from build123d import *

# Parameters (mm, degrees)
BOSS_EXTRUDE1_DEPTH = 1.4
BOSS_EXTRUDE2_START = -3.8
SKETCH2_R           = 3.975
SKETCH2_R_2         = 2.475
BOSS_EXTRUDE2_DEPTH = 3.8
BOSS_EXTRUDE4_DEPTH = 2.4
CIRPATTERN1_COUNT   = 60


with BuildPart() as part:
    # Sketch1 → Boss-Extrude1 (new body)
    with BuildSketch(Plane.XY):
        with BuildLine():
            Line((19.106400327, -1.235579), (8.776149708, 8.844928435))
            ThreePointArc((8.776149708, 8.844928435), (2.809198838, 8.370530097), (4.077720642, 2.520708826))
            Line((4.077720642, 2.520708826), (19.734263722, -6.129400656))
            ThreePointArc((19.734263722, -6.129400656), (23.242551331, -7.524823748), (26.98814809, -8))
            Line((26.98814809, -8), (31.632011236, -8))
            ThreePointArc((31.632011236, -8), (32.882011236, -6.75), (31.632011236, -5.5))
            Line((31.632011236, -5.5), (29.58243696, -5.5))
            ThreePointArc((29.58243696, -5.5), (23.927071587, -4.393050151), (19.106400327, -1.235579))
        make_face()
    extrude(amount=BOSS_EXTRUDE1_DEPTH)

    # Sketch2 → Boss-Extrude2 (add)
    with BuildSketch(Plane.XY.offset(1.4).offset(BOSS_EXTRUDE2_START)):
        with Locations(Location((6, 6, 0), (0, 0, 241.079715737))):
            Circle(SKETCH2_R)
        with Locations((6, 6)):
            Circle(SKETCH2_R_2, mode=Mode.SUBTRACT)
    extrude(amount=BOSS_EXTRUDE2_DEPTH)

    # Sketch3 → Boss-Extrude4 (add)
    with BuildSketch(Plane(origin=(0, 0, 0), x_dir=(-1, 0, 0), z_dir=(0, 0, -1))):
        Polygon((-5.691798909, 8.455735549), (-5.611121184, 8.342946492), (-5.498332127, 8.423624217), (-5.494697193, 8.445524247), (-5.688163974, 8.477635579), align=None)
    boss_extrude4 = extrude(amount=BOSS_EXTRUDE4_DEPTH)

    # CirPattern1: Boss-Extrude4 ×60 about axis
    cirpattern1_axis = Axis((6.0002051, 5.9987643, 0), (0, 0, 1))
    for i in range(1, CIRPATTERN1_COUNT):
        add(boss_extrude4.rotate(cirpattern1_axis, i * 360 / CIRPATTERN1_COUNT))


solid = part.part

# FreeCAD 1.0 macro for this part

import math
import FreeCAD as App
import Part
import Sketcher


def add_polygon(sketch, points):
    """Adds a closed chain of lines whose ends are joined by coincident constraints."""
    first, n = sketch.GeometryCount, len(points)
    for a, b in zip(points, points[1:] + points[:1]):
        sketch.addGeometry(Part.LineSegment(App.Vector(*a, 0), App.Vector(*b, 0)), False)
    for i in range(n):
        sketch.addConstraint(Sketcher.Constraint("Coincident", first + i, 2, first + (i + 1) % n, 1))

doc = App.newDocument("Part")
body = doc.addObject("PartDesign::Body", "Body")

sketch1 = body.newObject("Sketcher::SketchObject", "Sketch")
sketch1.AttachmentSupport = (doc.getObject("XY_Plane"), [""])
sketch1.MapMode = "FlatFace"
sketch1.addGeometry([
    Part.LineSegment(App.Vector(19.1064, -1.235579, 0), App.Vector(8.77615, 8.844928, 0)),
    Part.ArcOfCircle(Part.Circle(App.Vector(6, 6, 0), App.Vector(0, 0, 1), 3.975), math.radians(45.701028), math.radians(241.079716)),
    Part.LineSegment(App.Vector(4.077721, 2.520709, 0), App.Vector(19.734264, -6.129401, 0)),
    Part.ArcOfCircle(Part.Circle(App.Vector(26.988148, 7, 0), App.Vector(0, 0, 1), 15), math.radians(-118.920284), math.radians(-90)),
    Part.LineSegment(App.Vector(26.988148, -8, 0), App.Vector(31.632011, -8, 0)),
    Part.ArcOfCircle(Part.Circle(App.Vector(31.632011, -6.75, 0), App.Vector(0, 0, 1), 1.25), math.radians(-90), math.radians(90)),
    Part.LineSegment(App.Vector(31.632011, -5.5, 0), App.Vector(29.582437, -5.5, 0)),
    Part.ArcOfCircle(Part.Circle(App.Vector(29.582437, 9.5, 0), App.Vector(0, 0, 1), 15), math.radians(-134.298972), math.radians(-90)),
], False)
sketch1.addConstraint([
    Sketcher.Constraint("Coincident", 0, 2, 1, 1),
    Sketcher.Constraint("Coincident", 1, 2, 2, 1),
    Sketcher.Constraint("Coincident", 2, 2, 3, 1),
    Sketcher.Constraint("Coincident", 3, 2, 4, 1),
    Sketcher.Constraint("Coincident", 4, 2, 5, 1),
    Sketcher.Constraint("Coincident", 5, 2, 6, 1),
    Sketcher.Constraint("Coincident", 6, 2, 7, 2),
    Sketcher.Constraint("Coincident", 7, 1, 0, 1),
    Sketcher.Constraint("Horizontal", 4),
    Sketcher.Constraint("Horizontal", 6),
    Sketcher.Constraint("Radius", 3, 15.0),
    Sketcher.Constraint("Radius", 7, 15.0),
    Sketcher.Constraint("Radius", 5, 1.25),
    Sketcher.Constraint("DistanceX", -1, 1, 1, 3, 6.0),
    Sketcher.Constraint("DistanceY", -1, 1, 1, 3, 6.0),
    Sketcher.Constraint("DistanceY", -1, 1, 3, 3, 7.0),
    Sketcher.Constraint("Radius", 1, 3.975),
    Sketcher.Constraint("DistanceX", 0, 2, 3, 3, 18.211998),
    Sketcher.Constraint("DistanceX", 0, 2, 3, 2, 18.211998),
    Sketcher.Constraint("DistanceY", 2, 2, -1, 1, 6.129401),
    Sketcher.Constraint("DistanceX", -1, 1, 7, 1, 19.1064),
    Sketcher.Constraint("DistanceX", 4, 1, 4, 2, 4.643863),
    Sketcher.Constraint("DistanceX", 6, 2, 6, 1, 2.049574),
    Sketcher.Constraint("DistanceX", -1, 1, 3, 3, 26.988148),
    Sketcher.Constraint("DistanceX", -1, 1, 5, 3, 31.632011),
    Sketcher.Constraint("DistanceX", -1, 1, 1, 2, 4.077721),
    Sketcher.Constraint("DistanceX", -1, 1, 5, 2, 31.632011),
    Sketcher.Constraint("DistanceY", 7, 1, -1, 1, 1.235579),
])
pad1 = body.newObject("PartDesign::Pad", "Pad")
pad1.Profile = sketch1
pad1.Length = 1.4

sketch2 = body.newObject("Sketcher::SketchObject", "Sketch001")
sketch2.AttachmentSupport = (doc.getObject("XY_Plane"), [""])
sketch2.MapMode = "FlatFace"
sketch2.AttachmentOffset = App.Placement(App.Vector(0, 0, -2.4), App.Rotation())
sketch2.addGeometry([
    Part.Circle(App.Vector(6, 6, 0), App.Vector(0, 0, 1), 4),
    Part.Circle(App.Vector(6, 6, 0), App.Vector(0, 0, 1), 2.5),
], False)
sketch2.addConstraint([
    Sketcher.Constraint("Coincident", 1, 3, 0, 3),
    Sketcher.Constraint("Diameter", 0, 7.95),
    Sketcher.Constraint("Diameter", 1, 4.95),
    Sketcher.Constraint("DistanceX", -1, 1, 0, 3, 6.0),
    Sketcher.Constraint("DistanceY", -1, 1, 0, 3, 6.0),
])
pad2 = body.newObject("PartDesign::Pad", "Pad001")
pad2.Profile = sketch2
pad2.Length = 3.8

sketch3 = body.newObject("Sketcher::SketchObject", "Sketch002")
sketch3.AttachmentSupport = (doc.getObject("XY_Plane"), [""])
sketch3.MapMode = "FlatFace"
add_polygon(sketch3, [(5.692, 8.456), (5.611, 8.343), (5.498, 8.424), (5.495, 8.446), (5.688, 8.478)])
sketch3.addConstraint([
    Sketcher.Constraint("Perpendicular", 0, 1),
    Sketcher.Constraint("Perpendicular", 2, 3),
    Sketcher.Constraint("Perpendicular", 3, 4),
    Sketcher.Constraint("Equal", 0, 1),
    Sketcher.Constraint("Equal", 2, 4),
    Sketcher.Constraint("Distance", 2, 0.0222),
    Sketcher.Constraint("DistanceX", -1, 1, 4, 2, 5.691799),
    Sketcher.Constraint("DistanceY", 1, 2, 2, 2, 0.0219),
    Sketcher.Constraint("DistanceX", 2, 2, 4, 2, 0.197102),
    Sketcher.Constraint("DistanceY", -1, 1, 0, 2, 8.342946),
])
pad3 = body.newObject("PartDesign::Pad", "Pad002")
pad3.Profile = sketch3
pad3.Length = 2.4
pad3.Reversed = True
doc.recompute()

datumline = body.newObject("PartDesign::Line", "DatumLine")
datumline.Placement = App.Placement(App.Vector(6.000205, 5.998764, 0), App.Rotation(App.Vector(0, 0, 1), App.Vector(0, 0, 1)))
polarpattern = body.newObject("PartDesign::PolarPattern", "PolarPattern")
polarpattern.Originals = [pad3]
polarpattern.Axis = (datumline, [""])
polarpattern.Angle = 360
polarpattern.Occurrences = 60
body.Tip = polarpattern

doc.recompute()
